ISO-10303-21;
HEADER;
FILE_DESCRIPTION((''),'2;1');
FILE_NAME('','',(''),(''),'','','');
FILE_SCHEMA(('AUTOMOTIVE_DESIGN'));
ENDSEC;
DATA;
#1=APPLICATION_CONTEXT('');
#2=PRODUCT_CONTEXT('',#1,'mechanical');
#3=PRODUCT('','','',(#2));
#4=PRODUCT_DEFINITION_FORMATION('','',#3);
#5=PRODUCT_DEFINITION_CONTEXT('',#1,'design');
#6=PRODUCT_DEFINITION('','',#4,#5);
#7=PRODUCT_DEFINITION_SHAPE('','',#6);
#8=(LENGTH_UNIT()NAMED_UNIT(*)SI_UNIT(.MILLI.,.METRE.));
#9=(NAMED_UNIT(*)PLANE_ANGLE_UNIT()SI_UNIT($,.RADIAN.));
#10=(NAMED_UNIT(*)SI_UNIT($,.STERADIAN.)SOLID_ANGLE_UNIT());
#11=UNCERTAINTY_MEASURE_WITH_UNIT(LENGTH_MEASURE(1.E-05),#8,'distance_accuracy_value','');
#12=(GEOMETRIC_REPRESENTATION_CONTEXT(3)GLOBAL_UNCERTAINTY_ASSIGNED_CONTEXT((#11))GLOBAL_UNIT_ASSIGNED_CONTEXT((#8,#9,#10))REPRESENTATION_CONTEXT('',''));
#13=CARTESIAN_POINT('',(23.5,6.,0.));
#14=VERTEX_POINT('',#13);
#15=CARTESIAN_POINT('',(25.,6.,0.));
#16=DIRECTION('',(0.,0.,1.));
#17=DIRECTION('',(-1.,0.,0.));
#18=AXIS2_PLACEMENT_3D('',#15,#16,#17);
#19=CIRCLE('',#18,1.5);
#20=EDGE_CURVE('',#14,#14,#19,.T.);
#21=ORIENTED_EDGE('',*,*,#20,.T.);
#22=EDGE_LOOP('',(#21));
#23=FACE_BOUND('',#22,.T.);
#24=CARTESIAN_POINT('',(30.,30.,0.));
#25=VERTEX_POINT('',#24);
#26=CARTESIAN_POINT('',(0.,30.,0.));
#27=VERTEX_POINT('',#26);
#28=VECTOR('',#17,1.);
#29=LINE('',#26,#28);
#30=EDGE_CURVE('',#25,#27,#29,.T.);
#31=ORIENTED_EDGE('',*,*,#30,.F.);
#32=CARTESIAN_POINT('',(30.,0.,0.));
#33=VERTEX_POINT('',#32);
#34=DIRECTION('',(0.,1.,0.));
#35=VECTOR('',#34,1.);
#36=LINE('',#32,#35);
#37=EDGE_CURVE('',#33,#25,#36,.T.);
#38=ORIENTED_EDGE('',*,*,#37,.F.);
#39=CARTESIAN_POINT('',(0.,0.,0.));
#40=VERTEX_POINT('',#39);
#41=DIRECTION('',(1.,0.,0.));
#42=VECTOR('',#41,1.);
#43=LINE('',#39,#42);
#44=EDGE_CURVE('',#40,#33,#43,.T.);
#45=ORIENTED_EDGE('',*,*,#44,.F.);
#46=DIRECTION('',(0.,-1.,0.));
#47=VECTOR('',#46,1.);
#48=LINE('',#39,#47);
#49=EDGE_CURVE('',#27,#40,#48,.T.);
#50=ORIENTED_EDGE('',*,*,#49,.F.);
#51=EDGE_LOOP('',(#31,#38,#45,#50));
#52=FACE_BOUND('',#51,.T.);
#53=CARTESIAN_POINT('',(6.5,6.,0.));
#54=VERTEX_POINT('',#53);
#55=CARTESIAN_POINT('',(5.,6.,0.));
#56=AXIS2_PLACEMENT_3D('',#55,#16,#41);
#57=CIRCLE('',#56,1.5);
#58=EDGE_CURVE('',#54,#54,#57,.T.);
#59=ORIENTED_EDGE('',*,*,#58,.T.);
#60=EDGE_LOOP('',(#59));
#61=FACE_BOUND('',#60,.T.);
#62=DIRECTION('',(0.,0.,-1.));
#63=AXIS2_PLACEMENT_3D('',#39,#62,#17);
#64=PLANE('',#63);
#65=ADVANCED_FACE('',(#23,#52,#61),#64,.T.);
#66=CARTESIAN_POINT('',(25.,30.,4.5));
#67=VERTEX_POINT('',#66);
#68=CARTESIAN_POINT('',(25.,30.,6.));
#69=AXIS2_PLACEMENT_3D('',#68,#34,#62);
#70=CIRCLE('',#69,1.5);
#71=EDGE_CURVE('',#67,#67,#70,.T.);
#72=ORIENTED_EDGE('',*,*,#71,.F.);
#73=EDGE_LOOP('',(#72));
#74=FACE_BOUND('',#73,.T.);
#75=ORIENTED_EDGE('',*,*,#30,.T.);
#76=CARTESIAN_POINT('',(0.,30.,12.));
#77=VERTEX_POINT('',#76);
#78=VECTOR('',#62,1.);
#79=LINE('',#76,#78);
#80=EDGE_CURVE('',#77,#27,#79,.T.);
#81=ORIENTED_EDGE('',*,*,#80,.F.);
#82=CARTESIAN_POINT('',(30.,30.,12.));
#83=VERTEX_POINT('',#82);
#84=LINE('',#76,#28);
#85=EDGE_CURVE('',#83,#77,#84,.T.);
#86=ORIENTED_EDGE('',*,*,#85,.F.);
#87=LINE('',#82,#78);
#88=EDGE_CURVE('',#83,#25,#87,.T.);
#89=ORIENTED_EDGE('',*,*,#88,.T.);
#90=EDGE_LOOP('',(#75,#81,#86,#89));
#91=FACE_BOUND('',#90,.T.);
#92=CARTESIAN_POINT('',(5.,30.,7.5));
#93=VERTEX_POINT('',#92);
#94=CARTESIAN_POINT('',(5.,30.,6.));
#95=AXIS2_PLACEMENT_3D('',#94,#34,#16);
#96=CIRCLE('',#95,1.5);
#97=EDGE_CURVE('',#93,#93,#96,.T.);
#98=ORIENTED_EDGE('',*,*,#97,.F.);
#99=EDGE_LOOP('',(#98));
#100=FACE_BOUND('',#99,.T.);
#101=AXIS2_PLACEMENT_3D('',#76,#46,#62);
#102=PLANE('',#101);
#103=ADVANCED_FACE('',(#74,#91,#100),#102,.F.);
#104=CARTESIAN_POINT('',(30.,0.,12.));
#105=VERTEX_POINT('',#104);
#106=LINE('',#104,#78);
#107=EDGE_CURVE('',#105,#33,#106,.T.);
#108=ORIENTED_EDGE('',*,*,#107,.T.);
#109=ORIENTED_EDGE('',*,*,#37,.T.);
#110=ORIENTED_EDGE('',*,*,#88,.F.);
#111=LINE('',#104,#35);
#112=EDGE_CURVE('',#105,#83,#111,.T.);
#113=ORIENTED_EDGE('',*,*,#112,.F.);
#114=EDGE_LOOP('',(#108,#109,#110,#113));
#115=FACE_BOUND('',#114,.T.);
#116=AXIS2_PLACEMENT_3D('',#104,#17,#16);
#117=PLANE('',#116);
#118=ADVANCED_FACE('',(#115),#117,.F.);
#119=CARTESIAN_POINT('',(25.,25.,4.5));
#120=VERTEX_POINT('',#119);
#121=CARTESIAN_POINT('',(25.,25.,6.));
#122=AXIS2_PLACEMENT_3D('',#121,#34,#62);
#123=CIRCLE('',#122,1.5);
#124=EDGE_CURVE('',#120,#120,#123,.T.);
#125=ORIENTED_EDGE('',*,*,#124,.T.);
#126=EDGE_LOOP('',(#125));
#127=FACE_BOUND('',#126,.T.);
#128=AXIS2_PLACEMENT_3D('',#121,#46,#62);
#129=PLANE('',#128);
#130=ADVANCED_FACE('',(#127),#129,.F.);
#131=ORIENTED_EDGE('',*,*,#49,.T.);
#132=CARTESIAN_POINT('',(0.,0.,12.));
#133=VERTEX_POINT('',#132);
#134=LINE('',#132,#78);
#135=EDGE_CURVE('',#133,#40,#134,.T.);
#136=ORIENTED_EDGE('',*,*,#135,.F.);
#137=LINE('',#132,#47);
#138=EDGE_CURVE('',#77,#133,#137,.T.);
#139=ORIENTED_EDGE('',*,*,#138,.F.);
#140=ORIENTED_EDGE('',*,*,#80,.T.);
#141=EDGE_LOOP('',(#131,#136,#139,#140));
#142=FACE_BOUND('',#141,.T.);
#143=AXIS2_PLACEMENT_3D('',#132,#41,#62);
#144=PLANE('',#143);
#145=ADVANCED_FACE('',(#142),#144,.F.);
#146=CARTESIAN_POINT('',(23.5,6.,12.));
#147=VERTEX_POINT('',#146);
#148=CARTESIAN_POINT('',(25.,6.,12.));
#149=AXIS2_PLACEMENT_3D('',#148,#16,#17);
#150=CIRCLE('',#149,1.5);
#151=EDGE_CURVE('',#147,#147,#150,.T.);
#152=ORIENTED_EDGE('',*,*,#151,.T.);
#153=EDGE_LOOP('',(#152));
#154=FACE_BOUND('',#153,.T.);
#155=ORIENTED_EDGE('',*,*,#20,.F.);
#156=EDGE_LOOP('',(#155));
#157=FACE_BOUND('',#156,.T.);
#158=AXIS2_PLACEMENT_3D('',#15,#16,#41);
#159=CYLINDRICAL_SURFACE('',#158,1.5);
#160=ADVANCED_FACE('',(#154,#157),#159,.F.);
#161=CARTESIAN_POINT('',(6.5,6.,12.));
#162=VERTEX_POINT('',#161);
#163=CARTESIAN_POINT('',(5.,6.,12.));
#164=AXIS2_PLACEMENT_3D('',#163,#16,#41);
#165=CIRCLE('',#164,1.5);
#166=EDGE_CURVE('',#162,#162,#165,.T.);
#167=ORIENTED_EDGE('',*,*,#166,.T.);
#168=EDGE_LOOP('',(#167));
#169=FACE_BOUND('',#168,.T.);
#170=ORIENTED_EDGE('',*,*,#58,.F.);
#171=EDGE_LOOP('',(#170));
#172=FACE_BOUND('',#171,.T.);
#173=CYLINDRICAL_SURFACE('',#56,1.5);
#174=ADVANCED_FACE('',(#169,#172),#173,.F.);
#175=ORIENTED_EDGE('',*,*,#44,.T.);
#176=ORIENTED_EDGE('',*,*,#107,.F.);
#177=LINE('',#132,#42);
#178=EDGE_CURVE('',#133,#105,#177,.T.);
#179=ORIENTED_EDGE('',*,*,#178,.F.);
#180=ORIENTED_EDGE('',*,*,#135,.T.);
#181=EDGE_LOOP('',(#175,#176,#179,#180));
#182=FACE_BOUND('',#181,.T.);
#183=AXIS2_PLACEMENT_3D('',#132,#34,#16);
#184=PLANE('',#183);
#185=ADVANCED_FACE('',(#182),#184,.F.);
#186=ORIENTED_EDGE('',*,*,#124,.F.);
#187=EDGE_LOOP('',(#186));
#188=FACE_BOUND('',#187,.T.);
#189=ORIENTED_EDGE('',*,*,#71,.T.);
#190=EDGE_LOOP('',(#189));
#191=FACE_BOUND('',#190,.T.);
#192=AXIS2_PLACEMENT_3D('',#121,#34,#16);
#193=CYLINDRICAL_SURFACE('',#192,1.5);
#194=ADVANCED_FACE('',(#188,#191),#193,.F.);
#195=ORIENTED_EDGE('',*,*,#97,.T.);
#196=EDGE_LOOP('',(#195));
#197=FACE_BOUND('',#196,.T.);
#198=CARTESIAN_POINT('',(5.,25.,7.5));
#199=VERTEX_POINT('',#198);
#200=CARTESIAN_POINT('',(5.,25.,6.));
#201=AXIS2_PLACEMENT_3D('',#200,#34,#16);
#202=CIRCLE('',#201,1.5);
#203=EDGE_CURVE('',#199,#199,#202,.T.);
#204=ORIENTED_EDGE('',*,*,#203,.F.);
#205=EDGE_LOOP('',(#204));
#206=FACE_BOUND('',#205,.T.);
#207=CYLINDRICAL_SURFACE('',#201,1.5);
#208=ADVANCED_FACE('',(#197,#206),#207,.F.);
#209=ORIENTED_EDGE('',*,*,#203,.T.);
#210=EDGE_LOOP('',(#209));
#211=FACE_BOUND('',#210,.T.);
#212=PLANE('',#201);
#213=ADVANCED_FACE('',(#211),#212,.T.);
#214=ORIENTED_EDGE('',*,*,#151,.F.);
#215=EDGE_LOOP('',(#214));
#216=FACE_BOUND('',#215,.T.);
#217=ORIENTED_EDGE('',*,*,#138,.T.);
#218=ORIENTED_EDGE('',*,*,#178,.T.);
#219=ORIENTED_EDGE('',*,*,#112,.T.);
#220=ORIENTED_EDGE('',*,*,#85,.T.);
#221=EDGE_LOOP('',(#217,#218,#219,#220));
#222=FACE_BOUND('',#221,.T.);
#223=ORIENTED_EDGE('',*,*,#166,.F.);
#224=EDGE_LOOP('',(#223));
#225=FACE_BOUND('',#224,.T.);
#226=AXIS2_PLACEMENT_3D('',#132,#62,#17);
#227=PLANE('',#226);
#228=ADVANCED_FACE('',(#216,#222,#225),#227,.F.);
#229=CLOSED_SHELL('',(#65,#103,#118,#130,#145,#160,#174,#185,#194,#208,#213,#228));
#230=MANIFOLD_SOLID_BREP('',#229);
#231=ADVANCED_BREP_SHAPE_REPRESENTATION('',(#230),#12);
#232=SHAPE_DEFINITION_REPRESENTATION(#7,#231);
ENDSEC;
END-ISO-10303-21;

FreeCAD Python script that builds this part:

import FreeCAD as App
import Part
import Sketcher


def add_polygon(sketch, points):
    """Adds a closed chain of lines whose ends are joined by coincident constraints."""
    first, n = sketch.GeometryCount, len(points)
    for a, b in zip(points, points[1:] + points[:1]):
        sketch.addGeometry(Part.LineSegment(App.Vector(*a, 0), App.Vector(*b, 0)), False)
    for i in range(n):
        sketch.addConstraint(Sketcher.Constraint("Coincident", first + i, 2, first + (i + 1) % n, 1))

doc = App.newDocument("Part")
body = doc.addObject("PartDesign::Body", "Body")

# Sketch on XY plane
sketch1 = body.newObject("Sketcher::SketchObject", "Sketch")
sketch1.AttachmentSupport = (doc.getObject("XY_Plane"), [""])
sketch1.MapMode = "FlatFace"
add_polygon(sketch1, [(0, 30), (0, 0), (30, 0), (30, 30)])  # lines 0-3
sketch1.addConstraint(Sketcher.Constraint("Vertical", 0))
sketch1.addConstraint(Sketcher.Constraint("Horizontal", 1))
sketch1.addConstraint(Sketcher.Constraint("Vertical", 2))
sketch1.addConstraint(Sketcher.Constraint("Horizontal", 3))
sketch1.addConstraint(Sketcher.Constraint("Coincident", 0, 2, -1, 1))
sketch1.addConstraint(Sketcher.Constraint("Equal", 3, 0))
sketch1.addConstraint(Sketcher.Constraint("DistanceX", 1, 1, 1, 2, 30.0))
pad1 = body.newObject("PartDesign::Pad", "Pad")
pad1.Profile = sketch1
pad1.Length = 12

# Sketch on XY plane
sketch2 = body.newObject("Sketcher::SketchObject", "Sketch001")
sketch2.AttachmentSupport = (doc.getObject("XY_Plane"), [""])
sketch2.MapMode = "FlatFace"
sketch2.AttachmentOffset = App.Placement(App.Vector(0, 0, 12), App.Rotation())
sketch2.addGeometry(Part.Circle(App.Vector(5, 6, 0), App.Vector(0, 0, 1), 1.5), False)
sketch2.addGeometry(Part.Circle(App.Vector(25, 6, 0), App.Vector(0, 0, 1), 1.5), False)
sketch2.addConstraint(Sketcher.Constraint("Equal", 0, 1))
sketch2.addConstraint(Sketcher.Constraint("Horizontal", 0, 3, 1, 3))
sketch2.addConstraint(Sketcher.Constraint("Diameter", 0, 3.0))
sketch2.addConstraint(Sketcher.Constraint("DistanceX", -1, 1, 0, 3, 5.0))
sketch2.addConstraint(Sketcher.Constraint("DistanceY", -1, 1, 0, 3, 6.0))
sketch2.addConstraint(Sketcher.Constraint("DistanceX", -1, 1, 1, 3, 25.0))
pocket1 = body.newObject("PartDesign::Pocket", "Pocket")
pocket1.Profile = sketch2
pocket1.Type = "ThroughAll"

# Sketch on XZ plane
sketch3 = body.newObject("Sketcher::SketchObject", "Sketch002")
sketch3.AttachmentSupport = (doc.getObject("XZ_Plane"), [""])
sketch3.MapMode = "FlatFace"
sketch3.AttachmentOffset = App.Placement(App.Vector(0, 0, -30), App.Rotation())
sketch3.addGeometry(Part.Circle(App.Vector(5, 6, 0), App.Vector(0, 0, 1), 1.5), False)
sketch3.addGeometry(Part.Circle(App.Vector(25, 6, 0), App.Vector(0, 0, 1), 1.5), False)
sketch3.addConstraint(Sketcher.Constraint("Equal", 0, 1))
sketch3.addConstraint(Sketcher.Constraint("Horizontal", 0, 3, 1, 3))
sketch3.addConstraint(Sketcher.Constraint("Diameter", 0, 3.0))
sketch3.addConstraint(Sketcher.Constraint("DistanceX", -1, 1, 0, 3, 5.0))
sketch3.addConstraint(Sketcher.Constraint("DistanceY", -1, 1, 0, 3, 6.0))
sketch3.addConstraint(Sketcher.Constraint("DistanceX", -1, 1, 1, 3, 25.0))
pocket2 = body.newObject("PartDesign::Pocket", "Pocket001")
pocket2.Profile = sketch3
pocket2.Length = 5
pocket2.Reversed = True

doc.recompute()
